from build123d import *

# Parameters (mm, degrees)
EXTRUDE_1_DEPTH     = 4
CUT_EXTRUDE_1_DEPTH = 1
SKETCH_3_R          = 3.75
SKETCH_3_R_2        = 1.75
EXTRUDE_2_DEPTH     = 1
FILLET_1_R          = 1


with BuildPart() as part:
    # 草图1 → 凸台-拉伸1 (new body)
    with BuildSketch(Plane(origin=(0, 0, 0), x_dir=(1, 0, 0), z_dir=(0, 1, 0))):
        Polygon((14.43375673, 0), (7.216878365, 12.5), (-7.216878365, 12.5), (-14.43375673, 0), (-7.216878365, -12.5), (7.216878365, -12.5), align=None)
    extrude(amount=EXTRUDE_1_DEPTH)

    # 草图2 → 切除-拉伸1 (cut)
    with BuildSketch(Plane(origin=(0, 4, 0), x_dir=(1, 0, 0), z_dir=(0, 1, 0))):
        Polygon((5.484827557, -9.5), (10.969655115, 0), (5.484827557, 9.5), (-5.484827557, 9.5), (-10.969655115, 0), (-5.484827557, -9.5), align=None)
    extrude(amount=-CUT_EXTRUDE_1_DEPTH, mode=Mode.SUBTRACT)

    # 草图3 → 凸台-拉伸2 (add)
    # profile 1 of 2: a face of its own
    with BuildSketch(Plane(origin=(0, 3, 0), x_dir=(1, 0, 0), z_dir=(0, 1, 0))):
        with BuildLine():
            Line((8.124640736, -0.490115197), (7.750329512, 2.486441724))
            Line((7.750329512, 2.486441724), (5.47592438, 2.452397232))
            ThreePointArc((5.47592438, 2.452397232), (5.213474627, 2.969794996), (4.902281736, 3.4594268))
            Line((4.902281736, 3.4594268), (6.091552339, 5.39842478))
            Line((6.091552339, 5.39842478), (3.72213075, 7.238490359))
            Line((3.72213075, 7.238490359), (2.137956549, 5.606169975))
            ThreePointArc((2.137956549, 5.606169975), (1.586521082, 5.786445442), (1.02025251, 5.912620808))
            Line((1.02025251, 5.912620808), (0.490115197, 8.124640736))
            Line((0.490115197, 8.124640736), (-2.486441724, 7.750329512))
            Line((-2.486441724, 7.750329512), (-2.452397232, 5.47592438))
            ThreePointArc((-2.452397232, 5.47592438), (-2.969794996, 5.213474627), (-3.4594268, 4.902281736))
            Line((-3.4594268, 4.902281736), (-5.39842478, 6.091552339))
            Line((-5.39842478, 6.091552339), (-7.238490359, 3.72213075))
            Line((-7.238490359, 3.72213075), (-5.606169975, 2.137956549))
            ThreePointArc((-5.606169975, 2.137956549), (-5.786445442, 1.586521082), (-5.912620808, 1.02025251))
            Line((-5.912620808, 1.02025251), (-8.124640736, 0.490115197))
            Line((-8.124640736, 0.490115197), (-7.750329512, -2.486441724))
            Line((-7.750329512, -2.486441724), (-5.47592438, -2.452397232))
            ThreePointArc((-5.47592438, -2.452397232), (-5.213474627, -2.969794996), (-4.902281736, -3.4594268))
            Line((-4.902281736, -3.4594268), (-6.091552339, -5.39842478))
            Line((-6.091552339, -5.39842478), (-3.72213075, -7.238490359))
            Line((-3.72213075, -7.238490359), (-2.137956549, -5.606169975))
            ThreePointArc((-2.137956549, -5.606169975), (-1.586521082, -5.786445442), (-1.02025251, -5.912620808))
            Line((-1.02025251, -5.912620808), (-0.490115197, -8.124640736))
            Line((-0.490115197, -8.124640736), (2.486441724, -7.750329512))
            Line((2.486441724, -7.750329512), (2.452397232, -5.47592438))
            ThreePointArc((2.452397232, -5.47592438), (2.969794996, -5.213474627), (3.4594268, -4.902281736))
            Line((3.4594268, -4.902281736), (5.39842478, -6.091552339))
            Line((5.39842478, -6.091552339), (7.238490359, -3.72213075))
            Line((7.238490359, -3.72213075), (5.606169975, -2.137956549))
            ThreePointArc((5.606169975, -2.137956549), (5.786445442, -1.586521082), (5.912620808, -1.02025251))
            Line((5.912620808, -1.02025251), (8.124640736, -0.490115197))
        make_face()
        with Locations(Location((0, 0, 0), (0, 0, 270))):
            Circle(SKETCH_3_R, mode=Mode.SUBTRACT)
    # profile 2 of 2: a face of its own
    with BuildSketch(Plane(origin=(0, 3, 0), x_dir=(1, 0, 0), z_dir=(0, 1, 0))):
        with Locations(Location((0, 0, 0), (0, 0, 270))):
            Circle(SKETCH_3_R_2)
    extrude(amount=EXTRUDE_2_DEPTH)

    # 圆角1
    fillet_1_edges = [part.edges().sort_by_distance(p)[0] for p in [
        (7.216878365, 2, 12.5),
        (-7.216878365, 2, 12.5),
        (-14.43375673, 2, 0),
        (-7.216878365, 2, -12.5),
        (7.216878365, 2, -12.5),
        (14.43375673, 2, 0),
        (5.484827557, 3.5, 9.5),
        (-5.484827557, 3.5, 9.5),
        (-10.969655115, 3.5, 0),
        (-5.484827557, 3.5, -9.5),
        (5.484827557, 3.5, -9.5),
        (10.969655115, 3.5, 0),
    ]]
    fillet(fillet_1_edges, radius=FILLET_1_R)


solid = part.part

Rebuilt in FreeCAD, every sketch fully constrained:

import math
import FreeCAD as App
import Part
import Sketcher
from FreeCAD import Vector
Q = App.Units.Quantity


def edges_at(feature, points):
    """Names of the edges that pass closest to the given points."""
    edges = feature.Shape.Edges
    near = lambda p: min(range(len(edges)), key=lambda i: edges[i].distToShape(Part.Vertex(*p))[0])
    return sorted({f"Edge{near(p) + 1}" for p in points})

doc = App.newDocument("Part")
params = doc.addObject("Spreadsheet::Sheet", "Params")
for row, (alias, value) in enumerate([
    ("pad1_length", "4 mm"),
    ("pocket1_length", "1 mm"),
    ("sketch3_radius", "6 mm"),
    ("sketch3_diameter", "7.5 mm"),
    ("sketch3_diameter2", "3.5 mm"),
    ("sketch3_length", "3 mm"),
    ("pad2_length", "1 mm"),
    ("fillet_radius", "1 mm"),
], start=1):
    params.set(f"A{row}", alias)
    params.set(f"B{row}", "=" + value)
    params.setAlias(f"B{row}", alias)

body = doc.addObject("PartDesign::Body", "Body")

sketch1 = body.newObject("Sketcher::SketchObject", "Sketch")
sketch1.AttachmentSupport = (doc.getObject("XZ_Plane"), [""])
sketch1.MapMode = "FlatFace"
sketch1.addGeometry(Part.LineSegment(Vector(14, 0, 0), Vector(7, -12, 0)), False)
sketch1.addGeometry(Part.LineSegment(Vector(7, -12, 0), Vector(-7, -12, 0)), False)
sketch1.addGeometry(Part.LineSegment(Vector(-7, -12, 0), Vector(-14, 0, 0)), False)
sketch1.addGeometry(Part.LineSegment(Vector(-14, 0, 0), Vector(-7, 12, 0)), False)
sketch1.addGeometry(Part.LineSegment(Vector(-7, 12, 0), Vector(7, 12, 0)), False)
sketch1.addGeometry(Part.LineSegment(Vector(7, 12, 0), Vector(14, 0, 0)), False)
sketch1.addConstraint(Sketcher.Constraint("Coincident", 0, 2, 1, 1))
sketch1.addConstraint(Sketcher.Constraint("Coincident", 1, 2, 2, 1))
sketch1.addConstraint(Sketcher.Constraint("Coincident", 2, 2, 3, 1))
sketch1.addConstraint(Sketcher.Constraint("Coincident", 3, 2, 4, 1))
sketch1.addConstraint(Sketcher.Constraint("Coincident", 4, 2, 5, 1))
sketch1.addConstraint(Sketcher.Constraint("Coincident", 5, 2, 0, 1))
sketch1.addConstraint(Sketcher.Constraint("Horizontal", 1))
sketch1.addConstraint(Sketcher.Constraint("Horizontal", 4))
sketch1.addConstraint(Sketcher.Constraint("Symmetric", 0, 2, 3, 2, -1, 1))
sketch1.addConstraint(Sketcher.Constraint("Symmetric", 2, 2, 5, 2, -1, 1))
sketch1.addConstraint(Sketcher.Constraint("PointOnObject", 2, 2, -1))
sketch1.addConstraint(Sketcher.Constraint("Parallel", 2, 5))
sketch1.addConstraint(Sketcher.Constraint("Vertical", 1, 2, 3, 2))
sketch1.addConstraint(Sketcher.Constraint("Angle", 0, Q("-120 deg")))
sketch1.addConstraint(Sketcher.Constraint("DistanceY", 1, 2, 3, 2, 25.0))
sketch1.addConstraint(Sketcher.Constraint("DistanceX", 1, 2, 1, 1, 14.433757))
pad1 = body.newObject("PartDesign::Pad", "Pad")
pad1.Profile = sketch1
pad1.setExpression("Length", "Params.pad1_length")
pad1.Reversed = True

sketch2 = body.newObject("Sketcher::SketchObject", "Sketch001")
sketch2.AttachmentSupport = (doc.getObject("XZ_Plane"), [""])
sketch2.MapMode = "FlatFace"
sketch2.AttachmentOffset = App.Placement(Vector(0, 0, -4), App.Rotation())
sketch2.addGeometry(Part.LineSegment(Vector(5, 10, 0), Vector(11, 0, 0)), False)
sketch2.addGeometry(Part.LineSegment(Vector(11, 0, 0), Vector(5, -10, 0)), False)
sketch2.addGeometry(Part.LineSegment(Vector(5, -10, 0), Vector(-5, -10, 0)), False)
sketch2.addGeometry(Part.LineSegment(Vector(-5, -10, 0), Vector(-11, 0, 0)), False)
sketch2.addGeometry(Part.LineSegment(Vector(-11, 0, 0), Vector(-5, 10, 0)), False)
sketch2.addGeometry(Part.LineSegment(Vector(-5, 10, 0), Vector(5, 10, 0)), False)
sketch2.addConstraint(Sketcher.Constraint("Coincident", 0, 2, 1, 1))
sketch2.addConstraint(Sketcher.Constraint("Coincident", 1, 2, 2, 1))
sketch2.addConstraint(Sketcher.Constraint("Coincident", 2, 2, 3, 1))
sketch2.addConstraint(Sketcher.Constraint("Coincident", 3, 2, 4, 1))
sketch2.addConstraint(Sketcher.Constraint("Coincident", 4, 2, 5, 1))
sketch2.addConstraint(Sketcher.Constraint("Coincident", 5, 2, 0, 1))
sketch2.addConstraint(Sketcher.Constraint("Horizontal", 2))
sketch2.addConstraint(Sketcher.Constraint("Horizontal", 5))
sketch2.addConstraint(Sketcher.Constraint("Symmetric", 0, 2, 3, 2, -1, 1))
sketch2.addConstraint(Sketcher.Constraint("Symmetric", 1, 2, 4, 2, -1, 1))
sketch2.addConstraint(Sketcher.Constraint("PointOnObject", 0, 2, -1))
sketch2.addConstraint(Sketcher.Constraint("Parallel", 0, 3))
sketch2.addConstraint(Sketcher.Constraint("Vertical", 2, 2, 4, 2))
sketch2.addConstraint(Sketcher.Constraint("Angle", 0, Q("-60 deg")))
sketch2.addConstraint(Sketcher.Constraint("DistanceY", 2, 2, 4, 2, 19.0))
sketch2.addConstraint(Sketcher.Constraint("DistanceX", 2, 2, 2, 1, 10.969655))
pocket1 = body.newObject("PartDesign::Pocket", "Pocket")
pocket1.Profile = sketch2
pocket1.setExpression("Length", "Params.pocket1_length")
pocket1.Reversed = True

sketch3 = body.newObject("Sketcher::SketchObject", "Sketch002")
sketch3.AttachmentSupport = (doc.getObject("XZ_Plane"), [""])
sketch3.MapMode = "FlatFace"
sketch3.AttachmentOffset = App.Placement(Vector(0, 0, -3), App.Rotation())
sketch3.addGeometry(Part.LineSegment(Vector(8.1, 0.5, 0), Vector(7.8, -2.5, 0)), False)
sketch3.addGeometry(Part.LineSegment(Vector(7.8, -2.5, 0), Vector(5.5, -2.5, 0)), False)
sketch3.addGeometry(Part.ArcOfCircle(Part.Circle(Vector(0, 0, 0), Vector(0, 0, 1), 6), math.radians(-35.21), math.radians(-24.13)), False)
sketch3.addGeometry(Part.LineSegment(Vector(4.9, -3.5, 0), Vector(6.1, -5.4, 0)), False)
sketch3.addGeometry(Part.LineSegment(Vector(6.1, -5.4, 0), Vector(3.7, -7.2, 0)), False)
sketch3.addGeometry(Part.LineSegment(Vector(3.7, -7.2, 0), Vector(2.1, -5.6, 0)), False)
sketch3.addGeometry(Part.ArcOfCircle(Part.Circle(Vector(0, 0, 0), Vector(0, 0, 1), 6), math.radians(-80.21), math.radians(-69.13)), False)
sketch3.addGeometry(Part.LineSegment(Vector(1, -5.9, 0), Vector(0.5, -8.1, 0)), False)
sketch3.addGeometry(Part.LineSegment(Vector(0.5, -8.1, 0), Vector(-2.5, -7.8, 0)), False)
sketch3.addGeometry(Part.LineSegment(Vector(-2.5, -7.8, 0), Vector(-2.5, -5.5, 0)), False)
sketch3.addGeometry(Part.ArcOfCircle(Part.Circle(Vector(0, 0, 0), Vector(0, 0, 1), 6), math.radians(-125.21), math.radians(-114.13)), False)
sketch3.addGeometry(Part.LineSegment(Vector(-3.5, -4.9, 0), Vector(-5.4, -6.1, 0)), False)
sketch3.addGeometry(Part.LineSegment(Vector(-5.4, -6.1, 0), Vector(-7.2, -3.7, 0)), False)
sketch3.addGeometry(Part.LineSegment(Vector(-7.2, -3.7, 0), Vector(-5.6, -2.1, 0)), False)
sketch3.addGeometry(Part.ArcOfCircle(Part.Circle(Vector(0, 0, 0), Vector(0, 0, 1), 6), math.radians(-170.21), math.radians(-159.13)), False)
sketch3.addGeometry(Part.LineSegment(Vector(-5.9, -1, 0), Vector(-8.1, -0.5, 0)), False)
sketch3.addGeometry(Part.LineSegment(Vector(-8.1, -0.5, 0), Vector(-7.8, 2.5, 0)), False)
sketch3.addGeometry(Part.LineSegment(Vector(-7.8, 2.5, 0), Vector(-5.5, 2.5, 0)), False)
sketch3.addGeometry(Part.ArcOfCircle(Part.Circle(Vector(0, 0, 0), Vector(0, 0, 1), 6), math.radians(144.79), math.radians(155.87)), False)
sketch3.addGeometry(Part.LineSegment(Vector(-4.9, 3.5, 0), Vector(-6.1, 5.4, 0)), False)
sketch3.addGeometry(Part.LineSegment(Vector(-6.1, 5.4, 0), Vector(-3.7, 7.2, 0)), False)
sketch3.addGeometry(Part.LineSegment(Vector(-3.7, 7.2, 0), Vector(-2.1, 5.6, 0)), False)
sketch3.addGeometry(Part.ArcOfCircle(Part.Circle(Vector(0, 0, 0), Vector(0, 0, 1), 6), math.radians(99.79), math.radians(110.87)), False)
sketch3.addGeometry(Part.LineSegment(Vector(-1, 5.9, 0), Vector(-0.5, 8.1, 0)), False)
sketch3.addGeometry(Part.LineSegment(Vector(-0.5, 8.1, 0), Vector(2.5, 7.8, 0)), False)
sketch3.addGeometry(Part.LineSegment(Vector(2.5, 7.8, 0), Vector(2.5, 5.5, 0)), False)
sketch3.addGeometry(Part.ArcOfCircle(Part.Circle(Vector(0, 0, 0), Vector(0, 0, 1), 6), math.radians(54.79), math.radians(65.87)), False)
sketch3.addGeometry(Part.LineSegment(Vector(3.5, 4.9, 0), Vector(5.4, 6.1, 0)), False)
sketch3.addGeometry(Part.LineSegment(Vector(5.4, 6.1, 0), Vector(7.2, 3.7, 0)), False)
sketch3.addGeometry(Part.LineSegment(Vector(7.2, 3.7, 0), Vector(5.6, 2.1, 0)), False)
sketch3.addGeometry(Part.ArcOfCircle(Part.Circle(Vector(0, 0, 0), Vector(0, 0, 1), 6), math.radians(9.79), math.radians(20.87)), False)
sketch3.addGeometry(Part.LineSegment(Vector(5.9, 1, 0), Vector(8.1, 0.5, 0)), False)
sketch3.addGeometry(Part.Circle(Vector(0, 0, 0), Vector(0, 0, 1), 3.8), False)
sketch3.addGeometry(Part.Circle(Vector(0, 0, 0), Vector(0, 0, 1), 1.8), False)
sketch3.addConstraint(Sketcher.Constraint("Coincident", 0, 2, 1, 1))
sketch3.addConstraint(Sketcher.Constraint("Coincident", 1, 2, 2, 2))
sketch3.addConstraint(Sketcher.Constraint("Coincident", 2, 1, 3, 1))
sketch3.addConstraint(Sketcher.Constraint("Coincident", 3, 2, 4, 1))
sketch3.addConstraint(Sketcher.Constraint("Coincident", 4, 2, 5, 1))
sketch3.addConstraint(Sketcher.Constraint("Coincident", 5, 2, 6, 2))
sketch3.addConstraint(Sketcher.Constraint("Coincident", 6, 1, 7, 1))
sketch3.addConstraint(Sketcher.Constraint("Coincident", 7, 2, 8, 1))
sketch3.addConstraint(Sketcher.Constraint("Coincident", 8, 2, 9, 1))
sketch3.addConstraint(Sketcher.Constraint("Coincident", 9, 2, 10, 2))
sketch3.addConstraint(Sketcher.Constraint("Coincident", 10, 1, 11, 1))
sketch3.addConstraint(Sketcher.Constraint("Coincident", 11, 2, 12, 1))
sketch3.addConstraint(Sketcher.Constraint("Coincident", 12, 2, 13, 1))
sketch3.addConstraint(Sketcher.Constraint("Coincident", 13, 2, 14, 2))
sketch3.addConstraint(Sketcher.Constraint("Coincident", 14, 1, 15, 1))
sketch3.addConstraint(Sketcher.Constraint("Coincident", 15, 2, 16, 1))
sketch3.addConstraint(Sketcher.Constraint("Coincident", 16, 2, 17, 1))
sketch3.addConstraint(Sketcher.Constraint("Coincident", 17, 2, 18, 2))
sketch3.addConstraint(Sketcher.Constraint("Coincident", 18, 1, 19, 1))
sketch3.addConstraint(Sketcher.Constraint("Coincident", 19, 2, 20, 1))
sketch3.addConstraint(Sketcher.Constraint("Coincident", 20, 2, 21, 1))
sketch3.addConstraint(Sketcher.Constraint("Coincident", 21, 2, 22, 2))
sketch3.addConstraint(Sketcher.Constraint("Coincident", 22, 1, 23, 1))
sketch3.addConstraint(Sketcher.Constraint("Coincident", 23, 2, 24, 1))
sketch3.addConstraint(Sketcher.Constraint("Coincident", 24, 2, 25, 1))
sketch3.addConstraint(Sketcher.Constraint("Coincident", 25, 2, 26, 2))
sketch3.addConstraint(Sketcher.Constraint("Coincident", 26, 1, 27, 1))
sketch3.addConstraint(Sketcher.Constraint("Coincident", 27, 2, 28, 1))
sketch3.addConstraint(Sketcher.Constraint("Coincident", 28, 2, 29, 1))
sketch3.addConstraint(Sketcher.Constraint("Coincident", 29, 2, 30, 2))
sketch3.addConstraint(Sketcher.Constraint("Coincident", 30, 1, 31, 1))
sketch3.addConstraint(Sketcher.Constraint("Coincident", 31, 2, 0, 1))
sketch3.addConstraint(Sketcher.Constraint("Coincident", 2, 3, -1, 1))
sketch3.addConstraint(Sketcher.Constraint("Coincident", 6, 3, -1, 1))
sketch3.addConstraint(Sketcher.Constraint("Coincident", 10, 3, -1, 1))
sketch3.addConstraint(Sketcher.Constraint("Coincident", 14, 3, -1, 1))
sketch3.addConstraint(Sketcher.Constraint("Coincident", 18, 3, -1, 1))
sketch3.addConstraint(Sketcher.Constraint("Coincident", 22, 3, -1, 1))
sketch3.addConstraint(Sketcher.Constraint("Coincident", 26, 3, -1, 1))
sketch3.addConstraint(Sketcher.Constraint("Coincident", 30, 3, -1, 1))
sketch3.addConstraint(Sketcher.Constraint("Coincident", 32, 3, -1, 1))
sketch3.addConstraint(Sketcher.Constraint("Coincident", 33, 3, -1, 1))
sketch3.addConstraint(Sketcher.Constraint("Equal", 2, 6))
sketch3.addConstraint(Sketcher.Constraint("Equal", 6, 10))
sketch3.addConstraint(Sketcher.Constraint("Equal", 10, 14))
sketch3.addConstraint(Sketcher.Constraint("Equal", 14, 18))
sketch3.addConstraint(Sketcher.Constraint("Equal", 18, 22))
sketch3.addConstraint(Sketcher.Constraint("Equal", 22, 26))
sketch3.addConstraint(Sketcher.Constraint("Equal", 26, 30))
sketch3.addConstraint(Sketcher.Constraint("Symmetric", 0, 2, 16, 2, -1, 1))
sketch3.addConstraint(Sketcher.Constraint("Symmetric", 3, 2, 19, 2, -1, 1))
sketch3.addConstraint(Sketcher.Constraint("Symmetric", 4, 2, 20, 2, -1, 1))
sketch3.addConstraint(Sketcher.Constraint("Symmetric", 7, 2, 23, 2, -1, 1))
sketch3.addConstraint(Sketcher.Constraint("Symmetric", 8, 2, 24, 2, -1, 1))
sketch3.addConstraint(Sketcher.Constraint("Symmetric", 11, 2, 27, 2, -1, 1))
sketch3.addConstraint(Sketcher.Constraint("Symmetric", 12, 2, 28, 2, -1, 1))
sketch3.addConstraint(Sketcher.Constraint("Symmetric", 15, 2, 31, 2, -1, 1))
sketch3.addConstraint(Sketcher.Constraint("Perpendicular", 0, 8))
sketch3.addConstraint(Sketcher.Constraint("Perpendicular", 1, 9))
sketch3.addConstraint(Sketcher.Constraint("Perpendicular", 3, 11))
sketch3.addConstraint(Sketcher.Constraint("Perpendicular", 4, 12))
sketch3.addConstraint(Sketcher.Constraint("Perpendicular", 5, 13))
sketch3.addConstraint(Sketcher.Constraint("Perpendicular", 7, 15))
sketch3.addConstraint(Sketcher.Constraint("Perpendicular", 9, 17))
sketch3.addConstraint(Sketcher.Constraint("Perpendicular", 11, 19))
sketch3.addConstraint(Sketcher.Constraint("Perpendicular", 13, 21))
sketch3.addConstraint(Sketcher.Constraint("Perpendicular", 15, 23))
sketch3.addConstraint(Sketcher.Constraint("Perpendicular", 17, 25))
sketch3.addConstraint(Sketcher.Constraint("Perpendicular", 19, 27))
sketch3.addConstraint(Sketcher.Constraint("Perpendicular", 21, 29))
sketch3.addConstraint(Sketcher.Constraint("Perpendicular", 23, 31))
sketch3.addConstraint(Sketcher.Constraint("Equal", 1, 3))
sketch3.addConstraint(Sketcher.Constraint("Equal", 0, 4))
sketch3.addConstraint(Sketcher.Constraint("Equal", 3, 5))
sketch3.addConstraint(Sketcher.Constraint("Equal", 5, 7))
sketch3.addConstraint(Sketcher.Constraint("Equal", 4, 8))
sketch3.addConstraint(Sketcher.Constraint("Equal", 7, 9))
sketch3.addConstraint(Sketcher.Constraint("Equal", 9, 11))
sketch3.addConstraint(Sketcher.Constraint("Equal", 8, 12))
sketch3.addConstraint(Sketcher.Constraint("Equal", 11, 13))
sketch3.addConstraint(Sketcher.Constraint("Equal", 13, 15))
sketch3.addConstraint(Sketcher.Constraint("Radius", 2, 6.0))
sketch3.addConstraint(Sketcher.Constraint("Diameter", 32, 7.5))
sketch3.addConstraint(Sketcher.Constraint("Diameter", 33, 3.5))
sketch3.addConstraint(Sketcher.Constraint("Distance", 0, 3.0))
sketch3.addConstraint(Sketcher.Constraint("DistanceX", 4, 2, 0, 2, 4.028199))
sketch3.addConstraint(Sketcher.Constraint("DistanceX", 6, 1, 3, 2, 5.0713))
sketch3.addConstraint(Sketcher.Constraint("DistanceX", 8, 2, 5, 2, 4.624398))
sketch3.addConstraint(Sketcher.Constraint("Distance", 1, 2.27466))
sketch3.addConstraint(Sketcher.Constraint("DistanceX", -1, 1, 0, 2, 7.75033))
sketch3.addConstraint(Sketcher.Constraint("DistanceY", 0, 2, -1, 1, 2.486442))
sketch3.addConstraint(Sketcher.Constraint("DistanceX", -1, 1, 2, 1, 4.902282))
sketch3.setExpression("Constraints[81]", "Params.sketch3_radius")
sketch3.setExpression("Constraints[82]", "Params.sketch3_diameter")
sketch3.setExpression("Constraints[83]", "Params.sketch3_diameter2")
sketch3.setExpression("Constraints[84]", "Params.sketch3_length")
pad2 = body.newObject("PartDesign::Pad", "Pad001")
pad2.Profile = sketch3
pad2.setExpression("Length", "Params.pad2_length")
pad2.Reversed = True
doc.recompute()

fillet = body.newObject("PartDesign::Fillet", "Fillet")
fillet.Base = (pad2, edges_at(pad2, [
    (7.217, 2, 12.5),
    (-7.217, 2, 12.5),
    (-14.434, 2, 0),
    (-7.217, 2, -12.5),
    (7.217, 2, -12.5),
    (14.434, 2, 0),
    (5.485, 3.5, 9.5),
    (-5.485, 3.5, 9.5),
    (-10.97, 3.5, 0),
    (-5.485, 3.5, -9.5),
    (5.485, 3.5, -9.5),
    (10.97, 3.5, 0),
]))
fillet.setExpression("Radius", "Params.fillet_radius")

doc.recompute()
